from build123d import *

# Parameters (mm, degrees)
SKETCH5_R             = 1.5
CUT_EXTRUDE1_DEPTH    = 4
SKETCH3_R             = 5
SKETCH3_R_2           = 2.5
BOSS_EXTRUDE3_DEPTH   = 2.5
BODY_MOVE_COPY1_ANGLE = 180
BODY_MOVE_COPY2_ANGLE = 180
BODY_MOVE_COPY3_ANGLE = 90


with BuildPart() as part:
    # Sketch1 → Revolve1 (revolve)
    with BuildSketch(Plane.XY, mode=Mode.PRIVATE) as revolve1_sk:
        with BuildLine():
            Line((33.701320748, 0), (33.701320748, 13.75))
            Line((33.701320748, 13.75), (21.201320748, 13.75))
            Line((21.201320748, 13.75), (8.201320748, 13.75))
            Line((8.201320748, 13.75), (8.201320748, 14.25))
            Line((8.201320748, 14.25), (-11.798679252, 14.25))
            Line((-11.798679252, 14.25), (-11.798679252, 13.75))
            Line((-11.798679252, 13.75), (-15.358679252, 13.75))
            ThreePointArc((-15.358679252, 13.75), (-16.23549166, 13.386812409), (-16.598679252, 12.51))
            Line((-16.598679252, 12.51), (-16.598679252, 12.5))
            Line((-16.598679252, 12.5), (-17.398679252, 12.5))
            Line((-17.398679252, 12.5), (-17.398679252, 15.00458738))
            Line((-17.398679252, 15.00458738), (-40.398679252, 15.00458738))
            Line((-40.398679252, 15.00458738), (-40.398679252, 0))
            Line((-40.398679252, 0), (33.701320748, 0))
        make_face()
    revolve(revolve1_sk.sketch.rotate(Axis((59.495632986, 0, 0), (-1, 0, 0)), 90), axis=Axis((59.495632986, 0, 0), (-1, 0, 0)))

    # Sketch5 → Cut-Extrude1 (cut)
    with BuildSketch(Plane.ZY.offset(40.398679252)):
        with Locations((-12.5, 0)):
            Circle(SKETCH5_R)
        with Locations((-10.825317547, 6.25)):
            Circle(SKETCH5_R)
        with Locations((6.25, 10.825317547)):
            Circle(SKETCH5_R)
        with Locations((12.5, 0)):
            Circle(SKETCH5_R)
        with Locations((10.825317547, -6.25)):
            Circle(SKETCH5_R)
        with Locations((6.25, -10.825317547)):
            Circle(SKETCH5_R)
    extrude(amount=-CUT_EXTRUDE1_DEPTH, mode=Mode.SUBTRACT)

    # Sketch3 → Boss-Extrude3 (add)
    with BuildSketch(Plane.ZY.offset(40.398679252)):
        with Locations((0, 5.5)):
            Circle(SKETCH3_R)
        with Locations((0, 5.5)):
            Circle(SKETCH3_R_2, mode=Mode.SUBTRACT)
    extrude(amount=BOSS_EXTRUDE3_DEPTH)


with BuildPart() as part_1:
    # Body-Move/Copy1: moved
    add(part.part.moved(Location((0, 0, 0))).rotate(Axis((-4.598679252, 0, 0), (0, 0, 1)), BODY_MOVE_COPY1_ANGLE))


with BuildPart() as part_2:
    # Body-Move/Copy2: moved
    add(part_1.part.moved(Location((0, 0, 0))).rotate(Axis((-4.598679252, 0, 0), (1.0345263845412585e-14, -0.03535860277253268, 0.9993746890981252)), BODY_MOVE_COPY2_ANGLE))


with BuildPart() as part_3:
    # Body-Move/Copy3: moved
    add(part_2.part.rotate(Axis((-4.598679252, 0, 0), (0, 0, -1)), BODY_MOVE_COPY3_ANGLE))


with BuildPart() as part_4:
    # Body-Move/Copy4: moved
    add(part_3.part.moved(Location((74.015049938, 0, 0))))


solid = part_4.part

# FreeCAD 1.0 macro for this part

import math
import FreeCAD as App
import Part
import Sketcher
from FreeCAD import Vector
Q = App.Units.Quantity

doc = App.newDocument("Part")
params = doc.addObject("Spreadsheet::Sheet", "Params")
for row, (alias, value) in enumerate([
    ("sketch1_width", "20 mm"),
    ("sketch1_width2", "23 mm"),
    ("sketch1_radius", "1.24 mm"),
    ("sketch1_width3", "25.5 mm"),
    ("sketch1_width4", "0.8 mm"),
    ("revolution_angle", "360 deg"),
    ("sketch2_diameter", "3 mm"),
    ("pocket1_length", "4 mm"),
    ("sketch3_diameter", "10 mm"),
    ("sketch3_diameter2", "5 mm"),
    ("pad1_length", "2.5 mm"),
], start=1):
    params.set(f"A{row}", alias)
    params.set(f"B{row}", "=" + value)
    params.setAlias(f"B{row}", alias)

body = doc.addObject("PartDesign::Body", "Body")

# Sketch on XY plane
sketch1 = body.newObject("Sketcher::SketchObject", "Sketch")
sketch1.AttachmentSupport = (doc.getObject("XY_Plane"), [""])
sketch1.MapMode = "FlatFace"
sketch1.addGeometry(Part.LineSegment(Vector(33.701, 0, 0), Vector(33.701, 13.75, 0)), False)
sketch1.addGeometry(Part.LineSegment(Vector(33.701, 13.75, 0), Vector(8.201, 13.75, 0)), False)
sketch1.addGeometry(Part.LineSegment(Vector(8.201, 13.75, 0), Vector(8.201, 14.25, 0)), False)
sketch1.addGeometry(Part.LineSegment(Vector(8.201, 14.25, 0), Vector(-11.799, 14.25, 0)), False)
sketch1.addGeometry(Part.LineSegment(Vector(-11.799, 14.25, 0), Vector(-11.799, 13.75, 0)), False)
sketch1.addGeometry(Part.LineSegment(Vector(-11.799, 13.75, 0), Vector(-15.359, 13.75, 0)), False)
sketch1.addGeometry(Part.ArcOfCircle(Part.Circle(Vector(-15.359, 12.51, 0), Vector(0, 0, 1), 1.24), math.radians(90), math.radians(180)), False)
sketch1.addGeometry(Part.LineSegment(Vector(-16.599, 12.51, 0), Vector(-16.599, 12.5, 0)), False)
sketch1.addGeometry(Part.LineSegment(Vector(-16.599, 12.5, 0), Vector(-17.399, 12.5, 0)), False)
sketch1.addGeometry(Part.LineSegment(Vector(-17.399, 12.5, 0), Vector(-17.399, 15.005, 0)), False)
sketch1.addGeometry(Part.LineSegment(Vector(-17.399, 15.005, 0), Vector(-40.399, 15.005, 0)), False)
sketch1.addGeometry(Part.LineSegment(Vector(-40.399, 15.005, 0), Vector(-40.399, 0, 0)), False)
sketch1.addGeometry(Part.LineSegment(Vector(-40.399, 0, 0), Vector(33.701, 0, 0)), False)
sketch1.addConstraint(Sketcher.Constraint("Coincident", 0, 2, 1, 1))
sketch1.addConstraint(Sketcher.Constraint("Coincident", 1, 2, 2, 1))
sketch1.addConstraint(Sketcher.Constraint("Coincident", 2, 2, 3, 1))
sketch1.addConstraint(Sketcher.Constraint("Coincident", 3, 2, 4, 1))
sketch1.addConstraint(Sketcher.Constraint("Coincident", 4, 2, 5, 1))
sketch1.addConstraint(Sketcher.Constraint("Tangent", 5, 2, 6, 1))
sketch1.addConstraint(Sketcher.Constraint("Tangent", 6, 2, 7, 1))
sketch1.addConstraint(Sketcher.Constraint("Coincident", 7, 2, 8, 1))
sketch1.addConstraint(Sketcher.Constraint("Coincident", 8, 2, 9, 1))
sketch1.addConstraint(Sketcher.Constraint("Coincident", 9, 2, 10, 1))
sketch1.addConstraint(Sketcher.Constraint("Coincident", 10, 2, 11, 1))
sketch1.addConstraint(Sketcher.Constraint("Coincident", 11, 2, 12, 1))
sketch1.addConstraint(Sketcher.Constraint("Coincident", 12, 2, 0, 1))
sketch1.addConstraint(Sketcher.Constraint("Vertical", 0))
sketch1.addConstraint(Sketcher.Constraint("Horizontal", 1))
sketch1.addConstraint(Sketcher.Constraint("Vertical", 2))
sketch1.addConstraint(Sketcher.Constraint("Horizontal", 3))
sketch1.addConstraint(Sketcher.Constraint("Vertical", 4))
sketch1.addConstraint(Sketcher.Constraint("Horizontal", 5))
sketch1.addConstraint(Sketcher.Constraint("Vertical", 7))
sketch1.addConstraint(Sketcher.Constraint("Horizontal", 8))
sketch1.addConstraint(Sketcher.Constraint("Vertical", 9))
sketch1.addConstraint(Sketcher.Constraint("Horizontal", 10))
sketch1.addConstraint(Sketcher.Constraint("Vertical", 11))
sketch1.addConstraint(Sketcher.Constraint("Horizontal", 12))
sketch1.addConstraint(Sketcher.Constraint("PointOnObject", 11, 2, -1))
sketch1.addConstraint(Sketcher.Constraint("Horizontal", 1, 2, 4, 2))
sketch1.addConstraint(Sketcher.Constraint("DistanceX", 3, 2, 3, 1, Q("20 mm")))
sketch1.addConstraint(Sketcher.Constraint("DistanceX", 10, 2, 10, 1, Q("23 mm")))
sketch1.addConstraint(Sketcher.Constraint("Radius", 6, Q("1.24 mm")))
sketch1.addConstraint(Sketcher.Constraint("DistanceX", 1, 2, 1, 1, Q("25.5 mm")))
sketch1.addConstraint(Sketcher.Constraint("DistanceX", 8, 2, 8, 1, Q("0.8 mm")))
sketch1.addConstraint(Sketcher.Constraint("DistanceX", 12, 1, 12, 2, Q("74.1 mm")))
sketch1.addConstraint(Sketcher.Constraint("DistanceY", 2, 1, 2, 2, Q("0.5 mm")))
sketch1.addConstraint(Sketcher.Constraint("DistanceY", 0, 1, 0, 2, Q("13.75 mm")))
sketch1.addConstraint(Sketcher.Constraint("DistanceY", 7, 2, 7, 1, Q("0.01 mm")))
sketch1.addConstraint(Sketcher.Constraint("DistanceY", 9, 1, 9, 2, Q("2.504587 mm")))
sketch1.addConstraint(Sketcher.Constraint("DistanceX", 6, 3, -1, 1, Q("15.358679 mm")))
sketch1.setExpression("Constraints[27]", "Params.sketch1_width")
sketch1.setExpression("Constraints[28]", "Params.sketch1_width2")
sketch1.setExpression("Constraints[29]", "Params.sketch1_radius")
sketch1.setExpression("Constraints[30]", "Params.sketch1_width3")
sketch1.setExpression("Constraints[31]", "Params.sketch1_width4")
revolution = body.newObject("PartDesign::Revolution", "Revolution")
revolution.Profile = sketch1
revolution.ReferenceAxis = (sketch1, ["H_Axis"])
revolution.setExpression("Angle", "Params.revolution_angle")

# Sketch on YZ plane
sketch2 = body.newObject("Sketcher::SketchObject", "Sketch001")
sketch2.AttachmentSupport = (doc.getObject("YZ_Plane"), [""])
sketch2.MapMode = "FlatFace"
sketch2.AttachmentOffset = App.Placement(Vector(0, 0, -40.398679), App.Rotation())
sketch2.addGeometry(Part.Circle(Vector(0, -12.5, 0), Vector(0, 0, 1), 1.5), False)
sketch2.addGeometry(Part.Circle(Vector(6.2, -10.8, 0), Vector(0, 0, 1), 1.5), False)
sketch2.addGeometry(Part.Circle(Vector(10.8, 6.2, 0), Vector(0, 0, 1), 1.5), False)
sketch2.addGeometry(Part.Circle(Vector(0, 12.5, 0), Vector(0, 0, 1), 1.5), False)
sketch2.addGeometry(Part.Circle(Vector(-6.2, 10.8, 0), Vector(0, 0, 1), 1.5), False)
sketch2.addGeometry(Part.Circle(Vector(-10.8, 6.2, 0), Vector(0, 0, 1), 1.5), False)
sketch2.addConstraint(Sketcher.Constraint("Equal", 0, 1))
sketch2.addConstraint(Sketcher.Constraint("Equal", 1, 2))
sketch2.addConstraint(Sketcher.Constraint("Equal", 2, 3))
sketch2.addConstraint(Sketcher.Constraint("Equal", 3, 4))
sketch2.addConstraint(Sketcher.Constraint("Equal", 4, 5))
sketch2.addConstraint(Sketcher.Constraint("Symmetric", 0, 3, 3, 3, -1, 1))
sketch2.addConstraint(Sketcher.Constraint("Symmetric", 1, 3, 4, 3, -1, 1))
sketch2.addConstraint(Sketcher.Constraint("Symmetric", 2, 3, 5, 3, -2))
sketch2.addConstraint(Sketcher.Constraint("PointOnObject", 0, 3, -2))
sketch2.addConstraint(Sketcher.Constraint("Diameter", 0, Q("3 mm")))
sketch2.addConstraint(Sketcher.Constraint("DistanceY", 0, 3, 3, 3, Q("25 mm")))
sketch2.addConstraint(Sketcher.Constraint("DistanceX", 4, 3, 1, 3, Q("12.5 mm")))
sketch2.addConstraint(Sketcher.Constraint("DistanceY", -1, 1, 2, 3, Q("6.25 mm")))
sketch2.addConstraint(Sketcher.Constraint("DistanceY", 1, 3, -1, 1, Q("10.825318 mm")))
sketch2.addConstraint(Sketcher.Constraint("DistanceX", -1, 1, 2, 3, Q("10.825318 mm")))
sketch2.setExpression("Constraints[9]", "Params.sketch2_diameter")
pocket1 = body.newObject("PartDesign::Pocket", "Pocket")
pocket1.Profile = sketch2
pocket1.setExpression("Length", "Params.pocket1_length")
pocket1.Reversed = True

# Sketch on YZ plane
sketch3 = body.newObject("Sketcher::SketchObject", "Sketch002")
sketch3.AttachmentSupport = (doc.getObject("YZ_Plane"), [""])
sketch3.MapMode = "FlatFace"
sketch3.AttachmentOffset = App.Placement(Vector(0, 0, -40.398679), App.Rotation())
sketch3.addGeometry(Part.Circle(Vector(5.5, 0, 0), Vector(0, 0, 1), 5), False)
sketch3.addGeometry(Part.Circle(Vector(5.5, 0, 0), Vector(0, 0, 1), 2.5), False)
sketch3.addConstraint(Sketcher.Constraint("Coincident", 1, 3, 0, 3))
sketch3.addConstraint(Sketcher.Constraint("PointOnObject", 0, 3, -1))
sketch3.addConstraint(Sketcher.Constraint("Diameter", 0, Q("10 mm")))
sketch3.addConstraint(Sketcher.Constraint("Diameter", 1, Q("5 mm")))
sketch3.addConstraint(Sketcher.Constraint("DistanceX", -1, 1, 0, 3, Q("5.5 mm")))
sketch3.setExpression("Constraints[2]", "Params.sketch3_diameter")
sketch3.setExpression("Constraints[3]", "Params.sketch3_diameter2")
pad1 = body.newObject("PartDesign::Pad", "Pad")
pad1.Profile = sketch3
pad1.setExpression("Length", "Params.pad1_length")
pad1.Reversed = True
body2 = doc.addObject("PartDesign::Body", "Body001")
doc.recompute()

body.Placement = App.Placement(Vector(-9.197359, 0, 0), App.Rotation(Vector(0, 0, 1), 180))
boolean = body2.newObject("PartDesign::Boolean", "Boolean")
boolean.Type = "Fuse"
boolean.addObjects([body])
body3 = doc.addObject("PartDesign::Body", "Body002")
doc.recompute()

body2.Placement = App.Placement(Vector(-9.197359, 0, 0), App.Rotation(Vector(0, -0.035358603, 0.999374689), 180))
boolean2 = body3.newObject("PartDesign::Boolean", "Boolean001")
boolean2.Type = "Fuse"
boolean2.addObjects([body2])
body4 = doc.addObject("PartDesign::Body", "Body003")
doc.recompute()

body3.Placement = App.Placement(Vector(-4.598679, -4.598679, 0), App.Rotation(Vector(0, 0, -1), 90))
boolean3 = body4.newObject("PartDesign::Boolean", "Boolean002")
boolean3.Type = "Fuse"
boolean3.addObjects([body3])
body5 = doc.addObject("PartDesign::Body", "Body004")
doc.recompute()

body4.Placement = App.Placement(Vector(74.01505, 0, 0), App.Rotation(Vector(0, 0, 1), 0))
boolean4 = body5.newObject("PartDesign::Boolean", "Boolean003")
boolean4.Type = "Fuse"
boolean4.addObjects([body4])

doc.recompute()
